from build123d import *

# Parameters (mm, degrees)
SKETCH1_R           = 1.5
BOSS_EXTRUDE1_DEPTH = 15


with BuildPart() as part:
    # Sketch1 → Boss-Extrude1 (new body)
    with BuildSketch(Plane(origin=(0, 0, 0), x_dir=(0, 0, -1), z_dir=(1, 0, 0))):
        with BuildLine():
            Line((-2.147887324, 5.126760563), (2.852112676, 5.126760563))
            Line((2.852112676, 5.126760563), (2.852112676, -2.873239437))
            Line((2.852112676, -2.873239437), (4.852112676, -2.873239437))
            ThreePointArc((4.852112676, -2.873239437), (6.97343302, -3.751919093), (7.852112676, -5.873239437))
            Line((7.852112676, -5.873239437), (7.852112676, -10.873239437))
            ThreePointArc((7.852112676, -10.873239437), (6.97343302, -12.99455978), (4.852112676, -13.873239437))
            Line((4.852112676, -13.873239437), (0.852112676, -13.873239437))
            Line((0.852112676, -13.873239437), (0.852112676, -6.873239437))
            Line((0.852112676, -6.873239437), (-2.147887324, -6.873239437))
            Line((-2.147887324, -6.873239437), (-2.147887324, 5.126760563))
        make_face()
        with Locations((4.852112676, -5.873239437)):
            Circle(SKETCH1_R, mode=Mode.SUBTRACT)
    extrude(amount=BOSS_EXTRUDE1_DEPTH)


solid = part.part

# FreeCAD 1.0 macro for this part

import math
import FreeCAD as App
import Part
import Sketcher
Q = App.Units.Quantity

doc = App.newDocument("Part")
body = doc.addObject("PartDesign::Body", "Body")

sketch1 = doc.addObject("Sketcher::SketchObject", "Sketch")
body.addObject(sketch1)
sketch1.AttachmentSupport = (doc.YZ_Plane, [""])
sketch1.MapMode = "FlatFace"
sketch1.addGeometry([
    Part.LineSegment(App.Vector(5.1, -2.9, 0), App.Vector(5.1, 2.1, 0)),
    Part.LineSegment(App.Vector(5.1, 2.1, 0), App.Vector(-6.9, 2.1, 0)),
    Part.LineSegment(App.Vector(-6.9, 2.1, 0), App.Vector(-6.9, -0.9, 0)),
    Part.LineSegment(App.Vector(-6.9, -0.9, 0), App.Vector(-13.9, -0.9, 0)),
    Part.LineSegment(App.Vector(-13.9, -0.9, 0), App.Vector(-13.9, -4.9, 0)),
    Part.ArcOfCircle(Part.Circle(App.Vector(-10.9, -4.9, 0), App.Vector(0, 0, 1), 3), math.radians(180), math.radians(270)),
    Part.LineSegment(App.Vector(-10.9, -7.9, 0), App.Vector(-5.9, -7.9, 0)),
    Part.ArcOfCircle(Part.Circle(App.Vector(-5.9, -4.9, 0), App.Vector(0, 0, 1), 3), math.radians(-90), math.radians(0)),
    Part.LineSegment(App.Vector(-2.9, -4.9, 0), App.Vector(-2.9, -2.9, 0)),
    Part.LineSegment(App.Vector(-2.9, -2.9, 0), App.Vector(5.1, -2.9, 0)),
    Part.Circle(App.Vector(-5.9, -4.9, 0), App.Vector(0, 0, 1), 1.5),
], False)
sketch1.addConstraint([
    Sketcher.Constraint("Coincident", 0, 2, 1, 1),
    Sketcher.Constraint("Coincident", 1, 2, 2, 1),
    Sketcher.Constraint("Coincident", 2, 2, 3, 1),
    Sketcher.Constraint("Coincident", 3, 2, 4, 1),
    Sketcher.Constraint("Tangent", 4, 2, 5, 1),
    Sketcher.Constraint("Tangent", 5, 2, 6, 1),
    Sketcher.Constraint("Tangent", 6, 2, 7, 1),
    Sketcher.Constraint("Tangent", 7, 2, 8, 1),
    Sketcher.Constraint("Coincident", 8, 2, 9, 1),
    Sketcher.Constraint("Coincident", 9, 2, 0, 1),
    Sketcher.Constraint("Vertical", 0),
    Sketcher.Constraint("Horizontal", 1),
    Sketcher.Constraint("Vertical", 2),
    Sketcher.Constraint("Horizontal", 3),
    Sketcher.Constraint("Vertical", 4),
    Sketcher.Constraint("Horizontal", 6),
    Sketcher.Constraint("Vertical", 8),
    Sketcher.Constraint("Horizontal", 9),
    Sketcher.Constraint("Coincident", 10, 3, 7, 3),
    Sketcher.Constraint("Equal", 5, 7),
    Sketcher.Constraint("Equal", 6, 0),
    Sketcher.Constraint("Diameter", 10, Q("3 mm")),
    Sketcher.Constraint("Radius", 5, Q("3 mm")),
    Sketcher.Constraint("DistanceX", 1, 2, 1, 1, Q("12 mm")),
    Sketcher.Constraint("DistanceX", 3, 2, 3, 1, Q("7 mm")),
    Sketcher.Constraint("DistanceX", 6, 1, 6, 2, Q("5 mm")),
    Sketcher.Constraint("DistanceY", 2, 2, 2, 1, Q("3 mm")),
    Sketcher.Constraint("DistanceY", 4, 2, 4, 1, Q("4 mm")),
    Sketcher.Constraint("DistanceX", 5, 3, -1, 1, Q("10.873239 mm")),
    Sketcher.Constraint("DistanceY", 5, 3, -1, 1, Q("4.852113 mm")),
])
pad1 = doc.addObject("PartDesign::Pad", "Pad")
body.addObject(pad1)
pad1.Profile = sketch1
pad1.Length = 15

doc.recompute()
